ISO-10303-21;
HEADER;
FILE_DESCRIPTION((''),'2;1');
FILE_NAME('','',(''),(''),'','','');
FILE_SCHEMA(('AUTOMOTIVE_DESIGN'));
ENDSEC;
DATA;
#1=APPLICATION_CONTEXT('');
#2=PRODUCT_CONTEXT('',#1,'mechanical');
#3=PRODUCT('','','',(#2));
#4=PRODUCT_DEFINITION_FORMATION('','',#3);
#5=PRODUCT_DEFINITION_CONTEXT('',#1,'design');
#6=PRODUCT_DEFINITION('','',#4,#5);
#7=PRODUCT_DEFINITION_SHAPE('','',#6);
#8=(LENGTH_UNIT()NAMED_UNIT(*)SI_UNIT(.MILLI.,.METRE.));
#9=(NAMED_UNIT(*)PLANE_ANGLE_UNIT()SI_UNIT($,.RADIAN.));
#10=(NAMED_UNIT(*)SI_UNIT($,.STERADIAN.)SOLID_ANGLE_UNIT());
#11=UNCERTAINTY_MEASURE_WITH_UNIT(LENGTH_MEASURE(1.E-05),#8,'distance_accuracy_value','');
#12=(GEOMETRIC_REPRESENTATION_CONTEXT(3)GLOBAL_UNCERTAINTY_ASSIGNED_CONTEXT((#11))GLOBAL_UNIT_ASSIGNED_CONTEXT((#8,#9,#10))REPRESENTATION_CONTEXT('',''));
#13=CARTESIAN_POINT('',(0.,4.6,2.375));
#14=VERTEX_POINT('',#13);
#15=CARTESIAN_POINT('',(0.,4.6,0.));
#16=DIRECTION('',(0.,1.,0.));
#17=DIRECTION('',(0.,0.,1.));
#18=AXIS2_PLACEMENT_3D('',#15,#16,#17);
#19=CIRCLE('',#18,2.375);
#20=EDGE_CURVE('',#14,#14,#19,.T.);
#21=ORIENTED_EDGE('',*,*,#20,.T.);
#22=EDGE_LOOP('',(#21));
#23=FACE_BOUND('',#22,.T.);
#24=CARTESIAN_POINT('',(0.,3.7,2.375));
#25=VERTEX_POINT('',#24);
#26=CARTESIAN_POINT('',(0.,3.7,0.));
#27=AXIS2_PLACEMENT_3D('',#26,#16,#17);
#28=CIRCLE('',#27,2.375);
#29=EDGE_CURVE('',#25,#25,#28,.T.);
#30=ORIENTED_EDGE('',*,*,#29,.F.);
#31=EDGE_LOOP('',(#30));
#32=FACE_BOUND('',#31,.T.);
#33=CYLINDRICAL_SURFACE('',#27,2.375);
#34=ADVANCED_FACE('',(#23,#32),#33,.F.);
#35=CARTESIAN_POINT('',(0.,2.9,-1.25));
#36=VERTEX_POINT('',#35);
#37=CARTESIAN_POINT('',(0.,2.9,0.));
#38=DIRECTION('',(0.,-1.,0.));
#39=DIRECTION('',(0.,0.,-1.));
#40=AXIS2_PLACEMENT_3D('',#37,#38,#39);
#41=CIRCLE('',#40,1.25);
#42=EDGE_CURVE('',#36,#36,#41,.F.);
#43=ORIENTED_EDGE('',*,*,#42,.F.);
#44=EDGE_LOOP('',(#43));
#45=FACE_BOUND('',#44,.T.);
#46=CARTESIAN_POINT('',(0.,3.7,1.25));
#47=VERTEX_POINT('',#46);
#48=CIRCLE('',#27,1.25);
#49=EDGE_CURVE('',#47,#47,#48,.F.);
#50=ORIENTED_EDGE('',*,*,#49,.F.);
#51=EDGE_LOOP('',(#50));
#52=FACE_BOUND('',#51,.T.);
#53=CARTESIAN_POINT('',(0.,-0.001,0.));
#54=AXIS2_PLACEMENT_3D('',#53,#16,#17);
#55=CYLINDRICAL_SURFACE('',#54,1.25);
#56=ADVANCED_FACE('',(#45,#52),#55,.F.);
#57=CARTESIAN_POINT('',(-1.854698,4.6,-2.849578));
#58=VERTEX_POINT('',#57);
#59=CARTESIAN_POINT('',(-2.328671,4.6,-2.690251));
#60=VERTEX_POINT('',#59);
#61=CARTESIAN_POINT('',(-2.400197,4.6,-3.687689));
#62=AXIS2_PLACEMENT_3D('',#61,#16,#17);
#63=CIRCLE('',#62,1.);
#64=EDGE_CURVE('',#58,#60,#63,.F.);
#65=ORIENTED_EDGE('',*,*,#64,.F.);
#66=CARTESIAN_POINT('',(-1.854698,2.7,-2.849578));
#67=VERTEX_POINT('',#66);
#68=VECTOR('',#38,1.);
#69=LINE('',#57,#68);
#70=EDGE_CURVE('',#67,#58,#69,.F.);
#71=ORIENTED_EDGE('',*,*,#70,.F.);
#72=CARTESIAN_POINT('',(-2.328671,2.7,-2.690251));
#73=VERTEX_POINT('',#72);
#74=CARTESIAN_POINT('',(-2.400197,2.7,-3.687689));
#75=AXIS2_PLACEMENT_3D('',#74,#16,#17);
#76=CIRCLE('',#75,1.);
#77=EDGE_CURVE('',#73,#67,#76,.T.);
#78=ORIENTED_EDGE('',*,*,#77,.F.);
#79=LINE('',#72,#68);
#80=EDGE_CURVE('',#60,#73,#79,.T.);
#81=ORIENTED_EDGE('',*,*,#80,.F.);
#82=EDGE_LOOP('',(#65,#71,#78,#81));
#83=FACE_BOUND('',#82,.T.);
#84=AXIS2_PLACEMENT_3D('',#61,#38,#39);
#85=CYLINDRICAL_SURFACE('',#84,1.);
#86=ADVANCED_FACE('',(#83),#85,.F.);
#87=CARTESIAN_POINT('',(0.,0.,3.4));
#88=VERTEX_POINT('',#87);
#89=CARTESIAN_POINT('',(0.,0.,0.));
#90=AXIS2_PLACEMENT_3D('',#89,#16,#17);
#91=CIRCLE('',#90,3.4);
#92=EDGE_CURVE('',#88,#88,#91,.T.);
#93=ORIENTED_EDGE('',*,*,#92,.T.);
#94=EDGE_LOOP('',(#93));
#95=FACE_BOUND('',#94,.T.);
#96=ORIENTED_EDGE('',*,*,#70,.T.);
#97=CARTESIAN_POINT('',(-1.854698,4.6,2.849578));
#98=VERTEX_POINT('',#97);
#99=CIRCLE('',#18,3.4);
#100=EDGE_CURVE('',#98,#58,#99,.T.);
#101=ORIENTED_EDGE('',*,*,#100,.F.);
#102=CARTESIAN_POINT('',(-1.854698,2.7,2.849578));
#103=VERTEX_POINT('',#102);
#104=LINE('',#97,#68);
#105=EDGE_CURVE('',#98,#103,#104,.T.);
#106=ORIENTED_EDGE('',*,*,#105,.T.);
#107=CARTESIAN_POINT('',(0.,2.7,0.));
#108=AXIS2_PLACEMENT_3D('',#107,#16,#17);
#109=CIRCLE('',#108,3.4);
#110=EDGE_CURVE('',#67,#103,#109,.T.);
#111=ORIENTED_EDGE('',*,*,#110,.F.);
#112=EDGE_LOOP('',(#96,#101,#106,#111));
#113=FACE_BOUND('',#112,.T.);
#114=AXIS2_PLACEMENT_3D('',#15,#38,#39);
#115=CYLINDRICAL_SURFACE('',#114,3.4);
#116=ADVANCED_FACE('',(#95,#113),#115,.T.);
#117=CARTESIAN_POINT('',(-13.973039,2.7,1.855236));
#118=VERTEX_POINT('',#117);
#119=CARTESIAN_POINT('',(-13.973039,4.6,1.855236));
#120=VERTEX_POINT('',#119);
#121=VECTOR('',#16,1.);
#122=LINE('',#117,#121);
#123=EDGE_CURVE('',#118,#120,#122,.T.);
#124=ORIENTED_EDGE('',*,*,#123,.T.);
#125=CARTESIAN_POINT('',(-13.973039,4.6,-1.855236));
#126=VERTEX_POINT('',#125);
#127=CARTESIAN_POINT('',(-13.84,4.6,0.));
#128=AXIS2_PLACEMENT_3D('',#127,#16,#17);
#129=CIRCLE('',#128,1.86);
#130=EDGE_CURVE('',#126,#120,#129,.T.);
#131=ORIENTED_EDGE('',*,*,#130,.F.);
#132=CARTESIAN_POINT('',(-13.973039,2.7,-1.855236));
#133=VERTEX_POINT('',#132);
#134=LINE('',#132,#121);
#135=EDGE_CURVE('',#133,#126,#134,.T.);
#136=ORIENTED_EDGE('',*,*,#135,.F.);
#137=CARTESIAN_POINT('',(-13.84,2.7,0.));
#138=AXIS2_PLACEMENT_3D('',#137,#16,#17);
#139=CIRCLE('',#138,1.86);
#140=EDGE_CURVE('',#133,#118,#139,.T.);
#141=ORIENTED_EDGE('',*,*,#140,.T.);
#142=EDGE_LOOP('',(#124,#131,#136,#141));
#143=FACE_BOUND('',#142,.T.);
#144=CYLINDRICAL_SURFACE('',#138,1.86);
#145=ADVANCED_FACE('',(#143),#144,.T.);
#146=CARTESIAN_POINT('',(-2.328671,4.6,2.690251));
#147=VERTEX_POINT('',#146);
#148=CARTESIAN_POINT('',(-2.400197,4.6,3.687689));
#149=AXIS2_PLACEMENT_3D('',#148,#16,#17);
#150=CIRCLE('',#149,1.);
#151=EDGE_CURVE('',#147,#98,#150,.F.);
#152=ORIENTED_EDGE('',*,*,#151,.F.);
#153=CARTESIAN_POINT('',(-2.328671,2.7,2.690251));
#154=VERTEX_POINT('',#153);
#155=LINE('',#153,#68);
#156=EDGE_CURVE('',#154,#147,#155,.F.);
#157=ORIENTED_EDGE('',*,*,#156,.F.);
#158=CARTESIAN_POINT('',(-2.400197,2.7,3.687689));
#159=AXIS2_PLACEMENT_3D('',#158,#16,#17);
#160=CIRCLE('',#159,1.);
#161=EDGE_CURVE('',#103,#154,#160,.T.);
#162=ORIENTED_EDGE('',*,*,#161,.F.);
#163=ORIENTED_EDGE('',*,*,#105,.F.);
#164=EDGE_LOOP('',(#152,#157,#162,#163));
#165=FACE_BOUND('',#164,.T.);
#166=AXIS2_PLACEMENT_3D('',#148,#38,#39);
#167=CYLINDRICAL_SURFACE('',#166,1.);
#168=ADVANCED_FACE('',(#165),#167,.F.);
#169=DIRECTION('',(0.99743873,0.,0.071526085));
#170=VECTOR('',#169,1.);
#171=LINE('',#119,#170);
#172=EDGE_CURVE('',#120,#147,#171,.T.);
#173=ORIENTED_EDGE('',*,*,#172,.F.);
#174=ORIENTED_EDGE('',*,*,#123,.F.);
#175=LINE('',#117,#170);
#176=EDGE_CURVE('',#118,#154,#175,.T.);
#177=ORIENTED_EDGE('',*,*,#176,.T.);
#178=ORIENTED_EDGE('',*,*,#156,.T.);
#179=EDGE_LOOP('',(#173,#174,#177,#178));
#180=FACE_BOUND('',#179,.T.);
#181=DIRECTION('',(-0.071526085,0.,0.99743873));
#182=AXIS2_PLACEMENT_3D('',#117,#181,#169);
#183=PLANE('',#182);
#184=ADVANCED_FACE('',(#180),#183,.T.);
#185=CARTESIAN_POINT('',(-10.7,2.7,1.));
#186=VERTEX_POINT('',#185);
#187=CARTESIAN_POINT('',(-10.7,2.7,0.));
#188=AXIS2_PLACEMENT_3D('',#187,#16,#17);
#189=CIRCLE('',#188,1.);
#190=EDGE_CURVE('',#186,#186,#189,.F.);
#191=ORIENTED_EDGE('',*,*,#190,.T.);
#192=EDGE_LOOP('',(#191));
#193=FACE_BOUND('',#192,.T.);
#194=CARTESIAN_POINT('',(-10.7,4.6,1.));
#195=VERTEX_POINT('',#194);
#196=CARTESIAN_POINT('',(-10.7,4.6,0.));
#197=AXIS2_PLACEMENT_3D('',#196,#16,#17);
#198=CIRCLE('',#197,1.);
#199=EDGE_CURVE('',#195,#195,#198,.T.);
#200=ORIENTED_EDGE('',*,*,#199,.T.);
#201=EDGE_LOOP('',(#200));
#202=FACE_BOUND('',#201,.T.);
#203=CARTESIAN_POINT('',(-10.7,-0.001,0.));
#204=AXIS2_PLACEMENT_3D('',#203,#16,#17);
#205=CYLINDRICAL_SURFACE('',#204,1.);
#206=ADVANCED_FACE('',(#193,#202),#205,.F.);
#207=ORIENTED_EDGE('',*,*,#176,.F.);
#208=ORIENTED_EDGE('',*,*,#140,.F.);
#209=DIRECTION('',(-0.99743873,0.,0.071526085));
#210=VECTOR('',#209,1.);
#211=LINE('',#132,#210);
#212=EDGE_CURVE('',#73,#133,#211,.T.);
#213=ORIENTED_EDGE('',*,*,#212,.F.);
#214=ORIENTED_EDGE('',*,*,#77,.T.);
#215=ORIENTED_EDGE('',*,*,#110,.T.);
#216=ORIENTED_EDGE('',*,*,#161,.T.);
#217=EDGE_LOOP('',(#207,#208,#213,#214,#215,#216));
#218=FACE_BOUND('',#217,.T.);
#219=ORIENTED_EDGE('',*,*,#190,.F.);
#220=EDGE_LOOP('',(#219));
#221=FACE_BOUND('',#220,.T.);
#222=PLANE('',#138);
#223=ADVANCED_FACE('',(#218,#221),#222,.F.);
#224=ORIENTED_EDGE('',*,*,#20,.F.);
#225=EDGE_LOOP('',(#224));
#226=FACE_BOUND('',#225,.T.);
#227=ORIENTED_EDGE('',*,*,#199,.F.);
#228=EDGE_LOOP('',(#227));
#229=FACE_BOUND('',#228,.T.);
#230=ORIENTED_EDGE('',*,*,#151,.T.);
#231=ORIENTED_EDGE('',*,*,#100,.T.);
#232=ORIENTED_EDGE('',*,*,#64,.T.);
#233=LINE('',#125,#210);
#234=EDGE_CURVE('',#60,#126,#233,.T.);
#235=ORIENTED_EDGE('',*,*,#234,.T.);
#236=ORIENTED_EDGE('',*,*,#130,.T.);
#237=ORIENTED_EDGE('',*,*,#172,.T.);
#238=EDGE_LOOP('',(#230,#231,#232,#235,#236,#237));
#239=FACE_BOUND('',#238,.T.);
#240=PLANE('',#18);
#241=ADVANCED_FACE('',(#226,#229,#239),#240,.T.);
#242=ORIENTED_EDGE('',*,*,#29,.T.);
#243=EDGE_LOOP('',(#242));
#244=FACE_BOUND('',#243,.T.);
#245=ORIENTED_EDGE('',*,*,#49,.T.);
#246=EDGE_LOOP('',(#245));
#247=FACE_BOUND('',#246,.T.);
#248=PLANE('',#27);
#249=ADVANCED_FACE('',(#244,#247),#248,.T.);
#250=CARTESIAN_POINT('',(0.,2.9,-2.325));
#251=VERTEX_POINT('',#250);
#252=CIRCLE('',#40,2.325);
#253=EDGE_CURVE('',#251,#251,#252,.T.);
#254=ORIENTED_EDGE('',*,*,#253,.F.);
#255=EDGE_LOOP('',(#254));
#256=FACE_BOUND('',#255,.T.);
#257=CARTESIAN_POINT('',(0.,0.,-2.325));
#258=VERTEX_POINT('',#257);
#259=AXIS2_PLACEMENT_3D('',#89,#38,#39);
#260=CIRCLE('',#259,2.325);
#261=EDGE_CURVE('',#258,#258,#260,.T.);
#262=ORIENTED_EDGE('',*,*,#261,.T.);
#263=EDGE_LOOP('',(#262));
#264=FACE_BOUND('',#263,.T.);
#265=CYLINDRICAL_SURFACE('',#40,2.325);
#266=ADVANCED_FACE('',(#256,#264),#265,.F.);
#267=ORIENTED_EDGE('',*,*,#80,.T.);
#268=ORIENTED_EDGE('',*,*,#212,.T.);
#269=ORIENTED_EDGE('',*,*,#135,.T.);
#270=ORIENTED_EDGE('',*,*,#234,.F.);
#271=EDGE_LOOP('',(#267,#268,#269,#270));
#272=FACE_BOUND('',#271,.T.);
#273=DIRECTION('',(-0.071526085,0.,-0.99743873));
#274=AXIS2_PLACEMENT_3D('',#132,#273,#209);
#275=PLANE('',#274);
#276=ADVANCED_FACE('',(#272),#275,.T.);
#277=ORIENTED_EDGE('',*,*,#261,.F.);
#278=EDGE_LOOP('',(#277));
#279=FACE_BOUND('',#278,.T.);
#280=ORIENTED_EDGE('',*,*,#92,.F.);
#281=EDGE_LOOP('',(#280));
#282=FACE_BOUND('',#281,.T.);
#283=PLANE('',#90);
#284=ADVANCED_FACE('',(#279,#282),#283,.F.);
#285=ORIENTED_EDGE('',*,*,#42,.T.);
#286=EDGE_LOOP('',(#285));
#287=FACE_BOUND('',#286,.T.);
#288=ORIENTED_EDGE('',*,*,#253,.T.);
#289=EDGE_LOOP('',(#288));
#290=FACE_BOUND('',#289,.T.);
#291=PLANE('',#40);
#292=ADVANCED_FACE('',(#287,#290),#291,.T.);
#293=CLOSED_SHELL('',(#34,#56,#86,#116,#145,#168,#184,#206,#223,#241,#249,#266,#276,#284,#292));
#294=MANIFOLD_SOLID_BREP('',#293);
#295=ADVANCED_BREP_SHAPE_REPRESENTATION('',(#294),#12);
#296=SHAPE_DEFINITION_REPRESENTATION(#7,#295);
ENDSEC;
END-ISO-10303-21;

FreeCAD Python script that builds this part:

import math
import FreeCAD as App
import Part
import Sketcher

V = App.Vector
Q = App.Units.Quantity


def edges_at(feature, points):
    """Names of the edges that pass closest to the given points."""
    edges = feature.Shape.Edges
    near = lambda p: min(range(len(edges)), key=lambda i: edges[i].distToShape(Part.Vertex(*p))[0])
    return sorted({f"Edge{near(p) + 1}" for p in points})

doc = App.newDocument("Part")
body = doc.addObject("PartDesign::Body", "Body")

sketch1 = body.newObject("Sketcher::SketchObject", "Sketch")
sketch1.AttachmentSupport = (doc.getObject("XZ_Plane"), [""])
sketch1.MapMode = "FlatFace"
sketch1.addGeometry(Part.Circle(V(0, 0, 0), V(0, 0, 1), 3.4), False)
sketch1.addConstraint(Sketcher.Constraint("Coincident", 0, 3, -1, 1))
sketch1.addConstraint(Sketcher.Constraint("Diameter", 0, Q("6.8 mm")))
pad1 = body.newObject("PartDesign::Pad", "Pad")
pad1.Profile = sketch1
pad1.Length = 4.6
pad1.Reversed = True

sketch2 = body.newObject("Sketcher::SketchObject", "Sketch001")
sketch2.AttachmentSupport = (doc.getObject("XZ_Plane"), [""])
sketch2.MapMode = "FlatFace"
sketch2.AttachmentOffset = App.Placement(V(0, 0, -2.7), App.Rotation())
sketch2.addGeometry(Part.LineSegment(V(-14, 1.9, 0), V(-2.1, 2.7, 0)), False)
sketch2.addGeometry(Part.ArcOfCircle(Part.Circle(V(0, 0, 0), V(0, 0, 1), 3.4), math.radians(-127), math.radians(127)), False)
sketch2.addGeometry(Part.LineSegment(V(-2.1, -2.7, 0), V(-14, -1.9, 0)), False)
sketch2.addGeometry(Part.ArcOfCircle(Part.Circle(V(-13.8, 0, 0), V(0, 0, 1), 1.9), math.radians(94), math.radians(266)), False)
sketch2.addConstraint(Sketcher.Constraint("Coincident", 0, 2, 1, 2))
sketch2.addConstraint(Sketcher.Constraint("Coincident", 1, 1, 2, 1))
sketch2.addConstraint(Sketcher.Constraint("Tangent", 2, 2, 3, 2))
sketch2.addConstraint(Sketcher.Constraint("Tangent", 3, 1, 0, 1))
sketch2.addConstraint(Sketcher.Constraint("Coincident", 1, 3, -1, 1))
sketch2.addConstraint(Sketcher.Constraint("Symmetric", 2, 2, 3, 1, -1))
sketch2.addConstraint(Sketcher.Constraint("Radius", 1, Q("3.4 mm")))
sketch2.addConstraint(Sketcher.Constraint("Radius", 3, Q("1.86 mm")))
sketch2.addConstraint(Sketcher.Constraint("DistanceX", 3, 3, -1, 1, Q("13.84 mm")))
sketch2.addConstraint(Sketcher.Constraint("DistanceY", -1, 1, 0, 2, Q("2.71 mm")))
pad2 = body.newObject("PartDesign::Pad", "Pad001")
pad2.Profile = sketch2
pad2.Length = 1.9
pad2.Reversed = True

sketch3 = body.newObject("Sketcher::SketchObject", "Sketch002")
sketch3.AttachmentSupport = (doc.getObject("XZ_Plane"), [""])
sketch3.MapMode = "FlatFace"
sketch3.addGeometry(Part.Circle(V(0, 0, 0), V(0, 0, 1), 2.3), False)
sketch3.addConstraint(Sketcher.Constraint("Coincident", 0, 3, -1, 1))
sketch3.addConstraint(Sketcher.Constraint("Diameter", 0, Q("4.65 mm")))
pocket1 = body.newObject("PartDesign::Pocket", "Pocket")
pocket1.Profile = sketch3
pocket1.Length = 2.9
doc.recompute()

fillet = body.newObject("PartDesign::Fillet", "Fillet")
fillet.Base = (pocket1, edges_at(pocket1, [(-2.053, 3.65, -2.71), (-2.053, 3.65, 2.71)]))
fillet.Radius = 1

sketch4 = body.newObject("Sketcher::SketchObject", "Sketch003")
sketch4.AttachmentSupport = (doc.getObject("XZ_Plane"), [""])
sketch4.MapMode = "FlatFace"
sketch4.AttachmentOffset = App.Placement(V(0, 0, -4.6), App.Rotation())
sketch4.addGeometry(Part.Circle(V(0, 0, 0), V(0, 0, 1), 1.2), False)
sketch4.addConstraint(Sketcher.Constraint("Coincident", 0, 3, -1, 1))
sketch4.addConstraint(Sketcher.Constraint("Diameter", 0, Q("2.5 mm")))
pocket2 = body.newObject("PartDesign::Pocket", "Pocket001")
pocket2.Profile = sketch4
pocket2.Type = "UpToFirst"
pocket2.Reversed = True

sketch5 = body.newObject("Sketcher::SketchObject", "Sketch004")
sketch5.AttachmentSupport = (doc.getObject("XZ_Plane"), [""])
sketch5.MapMode = "FlatFace"
sketch5.AttachmentOffset = App.Placement(V(0, 0, -4.6), App.Rotation())
sketch5.addGeometry(Part.Circle(V(0, 0, 0), V(0, 0, 1), 2.4), False)
sketch5.addConstraint(Sketcher.Constraint("Coincident", 0, 3, -1, 1))
sketch5.addConstraint(Sketcher.Constraint("Diameter", 0, Q("4.75 mm")))
pocket3 = body.newObject("PartDesign::Pocket", "Pocket002")
pocket3.Profile = sketch5
pocket3.Length = 0.9
pocket3.Reversed = True

sketch6 = body.newObject("Sketcher::SketchObject", "Sketch005")
sketch6.AttachmentSupport = (doc.getObject("XZ_Plane"), [""])
sketch6.MapMode = "FlatFace"
sketch6.AttachmentOffset = App.Placement(V(0, 0, -4.6), App.Rotation())
sketch6.addGeometry(Part.Circle(V(-10.7, 0, 0), V(0, 0, 1), 1), False)
sketch6.addConstraint(Sketcher.Constraint("PointOnObject", 0, 3, -1))
sketch6.addConstraint(Sketcher.Constraint("Diameter", 0, Q("2 mm")))
sketch6.addConstraint(Sketcher.Constraint("DistanceX", 0, 3, -1, 1, Q("10.7 mm")))
pocket4 = body.newObject("PartDesign::Pocket", "Pocket003")
pocket4.Profile = sketch6
pocket4.Type = "UpToFirst"
pocket4.Reversed = True

doc.recompute()
